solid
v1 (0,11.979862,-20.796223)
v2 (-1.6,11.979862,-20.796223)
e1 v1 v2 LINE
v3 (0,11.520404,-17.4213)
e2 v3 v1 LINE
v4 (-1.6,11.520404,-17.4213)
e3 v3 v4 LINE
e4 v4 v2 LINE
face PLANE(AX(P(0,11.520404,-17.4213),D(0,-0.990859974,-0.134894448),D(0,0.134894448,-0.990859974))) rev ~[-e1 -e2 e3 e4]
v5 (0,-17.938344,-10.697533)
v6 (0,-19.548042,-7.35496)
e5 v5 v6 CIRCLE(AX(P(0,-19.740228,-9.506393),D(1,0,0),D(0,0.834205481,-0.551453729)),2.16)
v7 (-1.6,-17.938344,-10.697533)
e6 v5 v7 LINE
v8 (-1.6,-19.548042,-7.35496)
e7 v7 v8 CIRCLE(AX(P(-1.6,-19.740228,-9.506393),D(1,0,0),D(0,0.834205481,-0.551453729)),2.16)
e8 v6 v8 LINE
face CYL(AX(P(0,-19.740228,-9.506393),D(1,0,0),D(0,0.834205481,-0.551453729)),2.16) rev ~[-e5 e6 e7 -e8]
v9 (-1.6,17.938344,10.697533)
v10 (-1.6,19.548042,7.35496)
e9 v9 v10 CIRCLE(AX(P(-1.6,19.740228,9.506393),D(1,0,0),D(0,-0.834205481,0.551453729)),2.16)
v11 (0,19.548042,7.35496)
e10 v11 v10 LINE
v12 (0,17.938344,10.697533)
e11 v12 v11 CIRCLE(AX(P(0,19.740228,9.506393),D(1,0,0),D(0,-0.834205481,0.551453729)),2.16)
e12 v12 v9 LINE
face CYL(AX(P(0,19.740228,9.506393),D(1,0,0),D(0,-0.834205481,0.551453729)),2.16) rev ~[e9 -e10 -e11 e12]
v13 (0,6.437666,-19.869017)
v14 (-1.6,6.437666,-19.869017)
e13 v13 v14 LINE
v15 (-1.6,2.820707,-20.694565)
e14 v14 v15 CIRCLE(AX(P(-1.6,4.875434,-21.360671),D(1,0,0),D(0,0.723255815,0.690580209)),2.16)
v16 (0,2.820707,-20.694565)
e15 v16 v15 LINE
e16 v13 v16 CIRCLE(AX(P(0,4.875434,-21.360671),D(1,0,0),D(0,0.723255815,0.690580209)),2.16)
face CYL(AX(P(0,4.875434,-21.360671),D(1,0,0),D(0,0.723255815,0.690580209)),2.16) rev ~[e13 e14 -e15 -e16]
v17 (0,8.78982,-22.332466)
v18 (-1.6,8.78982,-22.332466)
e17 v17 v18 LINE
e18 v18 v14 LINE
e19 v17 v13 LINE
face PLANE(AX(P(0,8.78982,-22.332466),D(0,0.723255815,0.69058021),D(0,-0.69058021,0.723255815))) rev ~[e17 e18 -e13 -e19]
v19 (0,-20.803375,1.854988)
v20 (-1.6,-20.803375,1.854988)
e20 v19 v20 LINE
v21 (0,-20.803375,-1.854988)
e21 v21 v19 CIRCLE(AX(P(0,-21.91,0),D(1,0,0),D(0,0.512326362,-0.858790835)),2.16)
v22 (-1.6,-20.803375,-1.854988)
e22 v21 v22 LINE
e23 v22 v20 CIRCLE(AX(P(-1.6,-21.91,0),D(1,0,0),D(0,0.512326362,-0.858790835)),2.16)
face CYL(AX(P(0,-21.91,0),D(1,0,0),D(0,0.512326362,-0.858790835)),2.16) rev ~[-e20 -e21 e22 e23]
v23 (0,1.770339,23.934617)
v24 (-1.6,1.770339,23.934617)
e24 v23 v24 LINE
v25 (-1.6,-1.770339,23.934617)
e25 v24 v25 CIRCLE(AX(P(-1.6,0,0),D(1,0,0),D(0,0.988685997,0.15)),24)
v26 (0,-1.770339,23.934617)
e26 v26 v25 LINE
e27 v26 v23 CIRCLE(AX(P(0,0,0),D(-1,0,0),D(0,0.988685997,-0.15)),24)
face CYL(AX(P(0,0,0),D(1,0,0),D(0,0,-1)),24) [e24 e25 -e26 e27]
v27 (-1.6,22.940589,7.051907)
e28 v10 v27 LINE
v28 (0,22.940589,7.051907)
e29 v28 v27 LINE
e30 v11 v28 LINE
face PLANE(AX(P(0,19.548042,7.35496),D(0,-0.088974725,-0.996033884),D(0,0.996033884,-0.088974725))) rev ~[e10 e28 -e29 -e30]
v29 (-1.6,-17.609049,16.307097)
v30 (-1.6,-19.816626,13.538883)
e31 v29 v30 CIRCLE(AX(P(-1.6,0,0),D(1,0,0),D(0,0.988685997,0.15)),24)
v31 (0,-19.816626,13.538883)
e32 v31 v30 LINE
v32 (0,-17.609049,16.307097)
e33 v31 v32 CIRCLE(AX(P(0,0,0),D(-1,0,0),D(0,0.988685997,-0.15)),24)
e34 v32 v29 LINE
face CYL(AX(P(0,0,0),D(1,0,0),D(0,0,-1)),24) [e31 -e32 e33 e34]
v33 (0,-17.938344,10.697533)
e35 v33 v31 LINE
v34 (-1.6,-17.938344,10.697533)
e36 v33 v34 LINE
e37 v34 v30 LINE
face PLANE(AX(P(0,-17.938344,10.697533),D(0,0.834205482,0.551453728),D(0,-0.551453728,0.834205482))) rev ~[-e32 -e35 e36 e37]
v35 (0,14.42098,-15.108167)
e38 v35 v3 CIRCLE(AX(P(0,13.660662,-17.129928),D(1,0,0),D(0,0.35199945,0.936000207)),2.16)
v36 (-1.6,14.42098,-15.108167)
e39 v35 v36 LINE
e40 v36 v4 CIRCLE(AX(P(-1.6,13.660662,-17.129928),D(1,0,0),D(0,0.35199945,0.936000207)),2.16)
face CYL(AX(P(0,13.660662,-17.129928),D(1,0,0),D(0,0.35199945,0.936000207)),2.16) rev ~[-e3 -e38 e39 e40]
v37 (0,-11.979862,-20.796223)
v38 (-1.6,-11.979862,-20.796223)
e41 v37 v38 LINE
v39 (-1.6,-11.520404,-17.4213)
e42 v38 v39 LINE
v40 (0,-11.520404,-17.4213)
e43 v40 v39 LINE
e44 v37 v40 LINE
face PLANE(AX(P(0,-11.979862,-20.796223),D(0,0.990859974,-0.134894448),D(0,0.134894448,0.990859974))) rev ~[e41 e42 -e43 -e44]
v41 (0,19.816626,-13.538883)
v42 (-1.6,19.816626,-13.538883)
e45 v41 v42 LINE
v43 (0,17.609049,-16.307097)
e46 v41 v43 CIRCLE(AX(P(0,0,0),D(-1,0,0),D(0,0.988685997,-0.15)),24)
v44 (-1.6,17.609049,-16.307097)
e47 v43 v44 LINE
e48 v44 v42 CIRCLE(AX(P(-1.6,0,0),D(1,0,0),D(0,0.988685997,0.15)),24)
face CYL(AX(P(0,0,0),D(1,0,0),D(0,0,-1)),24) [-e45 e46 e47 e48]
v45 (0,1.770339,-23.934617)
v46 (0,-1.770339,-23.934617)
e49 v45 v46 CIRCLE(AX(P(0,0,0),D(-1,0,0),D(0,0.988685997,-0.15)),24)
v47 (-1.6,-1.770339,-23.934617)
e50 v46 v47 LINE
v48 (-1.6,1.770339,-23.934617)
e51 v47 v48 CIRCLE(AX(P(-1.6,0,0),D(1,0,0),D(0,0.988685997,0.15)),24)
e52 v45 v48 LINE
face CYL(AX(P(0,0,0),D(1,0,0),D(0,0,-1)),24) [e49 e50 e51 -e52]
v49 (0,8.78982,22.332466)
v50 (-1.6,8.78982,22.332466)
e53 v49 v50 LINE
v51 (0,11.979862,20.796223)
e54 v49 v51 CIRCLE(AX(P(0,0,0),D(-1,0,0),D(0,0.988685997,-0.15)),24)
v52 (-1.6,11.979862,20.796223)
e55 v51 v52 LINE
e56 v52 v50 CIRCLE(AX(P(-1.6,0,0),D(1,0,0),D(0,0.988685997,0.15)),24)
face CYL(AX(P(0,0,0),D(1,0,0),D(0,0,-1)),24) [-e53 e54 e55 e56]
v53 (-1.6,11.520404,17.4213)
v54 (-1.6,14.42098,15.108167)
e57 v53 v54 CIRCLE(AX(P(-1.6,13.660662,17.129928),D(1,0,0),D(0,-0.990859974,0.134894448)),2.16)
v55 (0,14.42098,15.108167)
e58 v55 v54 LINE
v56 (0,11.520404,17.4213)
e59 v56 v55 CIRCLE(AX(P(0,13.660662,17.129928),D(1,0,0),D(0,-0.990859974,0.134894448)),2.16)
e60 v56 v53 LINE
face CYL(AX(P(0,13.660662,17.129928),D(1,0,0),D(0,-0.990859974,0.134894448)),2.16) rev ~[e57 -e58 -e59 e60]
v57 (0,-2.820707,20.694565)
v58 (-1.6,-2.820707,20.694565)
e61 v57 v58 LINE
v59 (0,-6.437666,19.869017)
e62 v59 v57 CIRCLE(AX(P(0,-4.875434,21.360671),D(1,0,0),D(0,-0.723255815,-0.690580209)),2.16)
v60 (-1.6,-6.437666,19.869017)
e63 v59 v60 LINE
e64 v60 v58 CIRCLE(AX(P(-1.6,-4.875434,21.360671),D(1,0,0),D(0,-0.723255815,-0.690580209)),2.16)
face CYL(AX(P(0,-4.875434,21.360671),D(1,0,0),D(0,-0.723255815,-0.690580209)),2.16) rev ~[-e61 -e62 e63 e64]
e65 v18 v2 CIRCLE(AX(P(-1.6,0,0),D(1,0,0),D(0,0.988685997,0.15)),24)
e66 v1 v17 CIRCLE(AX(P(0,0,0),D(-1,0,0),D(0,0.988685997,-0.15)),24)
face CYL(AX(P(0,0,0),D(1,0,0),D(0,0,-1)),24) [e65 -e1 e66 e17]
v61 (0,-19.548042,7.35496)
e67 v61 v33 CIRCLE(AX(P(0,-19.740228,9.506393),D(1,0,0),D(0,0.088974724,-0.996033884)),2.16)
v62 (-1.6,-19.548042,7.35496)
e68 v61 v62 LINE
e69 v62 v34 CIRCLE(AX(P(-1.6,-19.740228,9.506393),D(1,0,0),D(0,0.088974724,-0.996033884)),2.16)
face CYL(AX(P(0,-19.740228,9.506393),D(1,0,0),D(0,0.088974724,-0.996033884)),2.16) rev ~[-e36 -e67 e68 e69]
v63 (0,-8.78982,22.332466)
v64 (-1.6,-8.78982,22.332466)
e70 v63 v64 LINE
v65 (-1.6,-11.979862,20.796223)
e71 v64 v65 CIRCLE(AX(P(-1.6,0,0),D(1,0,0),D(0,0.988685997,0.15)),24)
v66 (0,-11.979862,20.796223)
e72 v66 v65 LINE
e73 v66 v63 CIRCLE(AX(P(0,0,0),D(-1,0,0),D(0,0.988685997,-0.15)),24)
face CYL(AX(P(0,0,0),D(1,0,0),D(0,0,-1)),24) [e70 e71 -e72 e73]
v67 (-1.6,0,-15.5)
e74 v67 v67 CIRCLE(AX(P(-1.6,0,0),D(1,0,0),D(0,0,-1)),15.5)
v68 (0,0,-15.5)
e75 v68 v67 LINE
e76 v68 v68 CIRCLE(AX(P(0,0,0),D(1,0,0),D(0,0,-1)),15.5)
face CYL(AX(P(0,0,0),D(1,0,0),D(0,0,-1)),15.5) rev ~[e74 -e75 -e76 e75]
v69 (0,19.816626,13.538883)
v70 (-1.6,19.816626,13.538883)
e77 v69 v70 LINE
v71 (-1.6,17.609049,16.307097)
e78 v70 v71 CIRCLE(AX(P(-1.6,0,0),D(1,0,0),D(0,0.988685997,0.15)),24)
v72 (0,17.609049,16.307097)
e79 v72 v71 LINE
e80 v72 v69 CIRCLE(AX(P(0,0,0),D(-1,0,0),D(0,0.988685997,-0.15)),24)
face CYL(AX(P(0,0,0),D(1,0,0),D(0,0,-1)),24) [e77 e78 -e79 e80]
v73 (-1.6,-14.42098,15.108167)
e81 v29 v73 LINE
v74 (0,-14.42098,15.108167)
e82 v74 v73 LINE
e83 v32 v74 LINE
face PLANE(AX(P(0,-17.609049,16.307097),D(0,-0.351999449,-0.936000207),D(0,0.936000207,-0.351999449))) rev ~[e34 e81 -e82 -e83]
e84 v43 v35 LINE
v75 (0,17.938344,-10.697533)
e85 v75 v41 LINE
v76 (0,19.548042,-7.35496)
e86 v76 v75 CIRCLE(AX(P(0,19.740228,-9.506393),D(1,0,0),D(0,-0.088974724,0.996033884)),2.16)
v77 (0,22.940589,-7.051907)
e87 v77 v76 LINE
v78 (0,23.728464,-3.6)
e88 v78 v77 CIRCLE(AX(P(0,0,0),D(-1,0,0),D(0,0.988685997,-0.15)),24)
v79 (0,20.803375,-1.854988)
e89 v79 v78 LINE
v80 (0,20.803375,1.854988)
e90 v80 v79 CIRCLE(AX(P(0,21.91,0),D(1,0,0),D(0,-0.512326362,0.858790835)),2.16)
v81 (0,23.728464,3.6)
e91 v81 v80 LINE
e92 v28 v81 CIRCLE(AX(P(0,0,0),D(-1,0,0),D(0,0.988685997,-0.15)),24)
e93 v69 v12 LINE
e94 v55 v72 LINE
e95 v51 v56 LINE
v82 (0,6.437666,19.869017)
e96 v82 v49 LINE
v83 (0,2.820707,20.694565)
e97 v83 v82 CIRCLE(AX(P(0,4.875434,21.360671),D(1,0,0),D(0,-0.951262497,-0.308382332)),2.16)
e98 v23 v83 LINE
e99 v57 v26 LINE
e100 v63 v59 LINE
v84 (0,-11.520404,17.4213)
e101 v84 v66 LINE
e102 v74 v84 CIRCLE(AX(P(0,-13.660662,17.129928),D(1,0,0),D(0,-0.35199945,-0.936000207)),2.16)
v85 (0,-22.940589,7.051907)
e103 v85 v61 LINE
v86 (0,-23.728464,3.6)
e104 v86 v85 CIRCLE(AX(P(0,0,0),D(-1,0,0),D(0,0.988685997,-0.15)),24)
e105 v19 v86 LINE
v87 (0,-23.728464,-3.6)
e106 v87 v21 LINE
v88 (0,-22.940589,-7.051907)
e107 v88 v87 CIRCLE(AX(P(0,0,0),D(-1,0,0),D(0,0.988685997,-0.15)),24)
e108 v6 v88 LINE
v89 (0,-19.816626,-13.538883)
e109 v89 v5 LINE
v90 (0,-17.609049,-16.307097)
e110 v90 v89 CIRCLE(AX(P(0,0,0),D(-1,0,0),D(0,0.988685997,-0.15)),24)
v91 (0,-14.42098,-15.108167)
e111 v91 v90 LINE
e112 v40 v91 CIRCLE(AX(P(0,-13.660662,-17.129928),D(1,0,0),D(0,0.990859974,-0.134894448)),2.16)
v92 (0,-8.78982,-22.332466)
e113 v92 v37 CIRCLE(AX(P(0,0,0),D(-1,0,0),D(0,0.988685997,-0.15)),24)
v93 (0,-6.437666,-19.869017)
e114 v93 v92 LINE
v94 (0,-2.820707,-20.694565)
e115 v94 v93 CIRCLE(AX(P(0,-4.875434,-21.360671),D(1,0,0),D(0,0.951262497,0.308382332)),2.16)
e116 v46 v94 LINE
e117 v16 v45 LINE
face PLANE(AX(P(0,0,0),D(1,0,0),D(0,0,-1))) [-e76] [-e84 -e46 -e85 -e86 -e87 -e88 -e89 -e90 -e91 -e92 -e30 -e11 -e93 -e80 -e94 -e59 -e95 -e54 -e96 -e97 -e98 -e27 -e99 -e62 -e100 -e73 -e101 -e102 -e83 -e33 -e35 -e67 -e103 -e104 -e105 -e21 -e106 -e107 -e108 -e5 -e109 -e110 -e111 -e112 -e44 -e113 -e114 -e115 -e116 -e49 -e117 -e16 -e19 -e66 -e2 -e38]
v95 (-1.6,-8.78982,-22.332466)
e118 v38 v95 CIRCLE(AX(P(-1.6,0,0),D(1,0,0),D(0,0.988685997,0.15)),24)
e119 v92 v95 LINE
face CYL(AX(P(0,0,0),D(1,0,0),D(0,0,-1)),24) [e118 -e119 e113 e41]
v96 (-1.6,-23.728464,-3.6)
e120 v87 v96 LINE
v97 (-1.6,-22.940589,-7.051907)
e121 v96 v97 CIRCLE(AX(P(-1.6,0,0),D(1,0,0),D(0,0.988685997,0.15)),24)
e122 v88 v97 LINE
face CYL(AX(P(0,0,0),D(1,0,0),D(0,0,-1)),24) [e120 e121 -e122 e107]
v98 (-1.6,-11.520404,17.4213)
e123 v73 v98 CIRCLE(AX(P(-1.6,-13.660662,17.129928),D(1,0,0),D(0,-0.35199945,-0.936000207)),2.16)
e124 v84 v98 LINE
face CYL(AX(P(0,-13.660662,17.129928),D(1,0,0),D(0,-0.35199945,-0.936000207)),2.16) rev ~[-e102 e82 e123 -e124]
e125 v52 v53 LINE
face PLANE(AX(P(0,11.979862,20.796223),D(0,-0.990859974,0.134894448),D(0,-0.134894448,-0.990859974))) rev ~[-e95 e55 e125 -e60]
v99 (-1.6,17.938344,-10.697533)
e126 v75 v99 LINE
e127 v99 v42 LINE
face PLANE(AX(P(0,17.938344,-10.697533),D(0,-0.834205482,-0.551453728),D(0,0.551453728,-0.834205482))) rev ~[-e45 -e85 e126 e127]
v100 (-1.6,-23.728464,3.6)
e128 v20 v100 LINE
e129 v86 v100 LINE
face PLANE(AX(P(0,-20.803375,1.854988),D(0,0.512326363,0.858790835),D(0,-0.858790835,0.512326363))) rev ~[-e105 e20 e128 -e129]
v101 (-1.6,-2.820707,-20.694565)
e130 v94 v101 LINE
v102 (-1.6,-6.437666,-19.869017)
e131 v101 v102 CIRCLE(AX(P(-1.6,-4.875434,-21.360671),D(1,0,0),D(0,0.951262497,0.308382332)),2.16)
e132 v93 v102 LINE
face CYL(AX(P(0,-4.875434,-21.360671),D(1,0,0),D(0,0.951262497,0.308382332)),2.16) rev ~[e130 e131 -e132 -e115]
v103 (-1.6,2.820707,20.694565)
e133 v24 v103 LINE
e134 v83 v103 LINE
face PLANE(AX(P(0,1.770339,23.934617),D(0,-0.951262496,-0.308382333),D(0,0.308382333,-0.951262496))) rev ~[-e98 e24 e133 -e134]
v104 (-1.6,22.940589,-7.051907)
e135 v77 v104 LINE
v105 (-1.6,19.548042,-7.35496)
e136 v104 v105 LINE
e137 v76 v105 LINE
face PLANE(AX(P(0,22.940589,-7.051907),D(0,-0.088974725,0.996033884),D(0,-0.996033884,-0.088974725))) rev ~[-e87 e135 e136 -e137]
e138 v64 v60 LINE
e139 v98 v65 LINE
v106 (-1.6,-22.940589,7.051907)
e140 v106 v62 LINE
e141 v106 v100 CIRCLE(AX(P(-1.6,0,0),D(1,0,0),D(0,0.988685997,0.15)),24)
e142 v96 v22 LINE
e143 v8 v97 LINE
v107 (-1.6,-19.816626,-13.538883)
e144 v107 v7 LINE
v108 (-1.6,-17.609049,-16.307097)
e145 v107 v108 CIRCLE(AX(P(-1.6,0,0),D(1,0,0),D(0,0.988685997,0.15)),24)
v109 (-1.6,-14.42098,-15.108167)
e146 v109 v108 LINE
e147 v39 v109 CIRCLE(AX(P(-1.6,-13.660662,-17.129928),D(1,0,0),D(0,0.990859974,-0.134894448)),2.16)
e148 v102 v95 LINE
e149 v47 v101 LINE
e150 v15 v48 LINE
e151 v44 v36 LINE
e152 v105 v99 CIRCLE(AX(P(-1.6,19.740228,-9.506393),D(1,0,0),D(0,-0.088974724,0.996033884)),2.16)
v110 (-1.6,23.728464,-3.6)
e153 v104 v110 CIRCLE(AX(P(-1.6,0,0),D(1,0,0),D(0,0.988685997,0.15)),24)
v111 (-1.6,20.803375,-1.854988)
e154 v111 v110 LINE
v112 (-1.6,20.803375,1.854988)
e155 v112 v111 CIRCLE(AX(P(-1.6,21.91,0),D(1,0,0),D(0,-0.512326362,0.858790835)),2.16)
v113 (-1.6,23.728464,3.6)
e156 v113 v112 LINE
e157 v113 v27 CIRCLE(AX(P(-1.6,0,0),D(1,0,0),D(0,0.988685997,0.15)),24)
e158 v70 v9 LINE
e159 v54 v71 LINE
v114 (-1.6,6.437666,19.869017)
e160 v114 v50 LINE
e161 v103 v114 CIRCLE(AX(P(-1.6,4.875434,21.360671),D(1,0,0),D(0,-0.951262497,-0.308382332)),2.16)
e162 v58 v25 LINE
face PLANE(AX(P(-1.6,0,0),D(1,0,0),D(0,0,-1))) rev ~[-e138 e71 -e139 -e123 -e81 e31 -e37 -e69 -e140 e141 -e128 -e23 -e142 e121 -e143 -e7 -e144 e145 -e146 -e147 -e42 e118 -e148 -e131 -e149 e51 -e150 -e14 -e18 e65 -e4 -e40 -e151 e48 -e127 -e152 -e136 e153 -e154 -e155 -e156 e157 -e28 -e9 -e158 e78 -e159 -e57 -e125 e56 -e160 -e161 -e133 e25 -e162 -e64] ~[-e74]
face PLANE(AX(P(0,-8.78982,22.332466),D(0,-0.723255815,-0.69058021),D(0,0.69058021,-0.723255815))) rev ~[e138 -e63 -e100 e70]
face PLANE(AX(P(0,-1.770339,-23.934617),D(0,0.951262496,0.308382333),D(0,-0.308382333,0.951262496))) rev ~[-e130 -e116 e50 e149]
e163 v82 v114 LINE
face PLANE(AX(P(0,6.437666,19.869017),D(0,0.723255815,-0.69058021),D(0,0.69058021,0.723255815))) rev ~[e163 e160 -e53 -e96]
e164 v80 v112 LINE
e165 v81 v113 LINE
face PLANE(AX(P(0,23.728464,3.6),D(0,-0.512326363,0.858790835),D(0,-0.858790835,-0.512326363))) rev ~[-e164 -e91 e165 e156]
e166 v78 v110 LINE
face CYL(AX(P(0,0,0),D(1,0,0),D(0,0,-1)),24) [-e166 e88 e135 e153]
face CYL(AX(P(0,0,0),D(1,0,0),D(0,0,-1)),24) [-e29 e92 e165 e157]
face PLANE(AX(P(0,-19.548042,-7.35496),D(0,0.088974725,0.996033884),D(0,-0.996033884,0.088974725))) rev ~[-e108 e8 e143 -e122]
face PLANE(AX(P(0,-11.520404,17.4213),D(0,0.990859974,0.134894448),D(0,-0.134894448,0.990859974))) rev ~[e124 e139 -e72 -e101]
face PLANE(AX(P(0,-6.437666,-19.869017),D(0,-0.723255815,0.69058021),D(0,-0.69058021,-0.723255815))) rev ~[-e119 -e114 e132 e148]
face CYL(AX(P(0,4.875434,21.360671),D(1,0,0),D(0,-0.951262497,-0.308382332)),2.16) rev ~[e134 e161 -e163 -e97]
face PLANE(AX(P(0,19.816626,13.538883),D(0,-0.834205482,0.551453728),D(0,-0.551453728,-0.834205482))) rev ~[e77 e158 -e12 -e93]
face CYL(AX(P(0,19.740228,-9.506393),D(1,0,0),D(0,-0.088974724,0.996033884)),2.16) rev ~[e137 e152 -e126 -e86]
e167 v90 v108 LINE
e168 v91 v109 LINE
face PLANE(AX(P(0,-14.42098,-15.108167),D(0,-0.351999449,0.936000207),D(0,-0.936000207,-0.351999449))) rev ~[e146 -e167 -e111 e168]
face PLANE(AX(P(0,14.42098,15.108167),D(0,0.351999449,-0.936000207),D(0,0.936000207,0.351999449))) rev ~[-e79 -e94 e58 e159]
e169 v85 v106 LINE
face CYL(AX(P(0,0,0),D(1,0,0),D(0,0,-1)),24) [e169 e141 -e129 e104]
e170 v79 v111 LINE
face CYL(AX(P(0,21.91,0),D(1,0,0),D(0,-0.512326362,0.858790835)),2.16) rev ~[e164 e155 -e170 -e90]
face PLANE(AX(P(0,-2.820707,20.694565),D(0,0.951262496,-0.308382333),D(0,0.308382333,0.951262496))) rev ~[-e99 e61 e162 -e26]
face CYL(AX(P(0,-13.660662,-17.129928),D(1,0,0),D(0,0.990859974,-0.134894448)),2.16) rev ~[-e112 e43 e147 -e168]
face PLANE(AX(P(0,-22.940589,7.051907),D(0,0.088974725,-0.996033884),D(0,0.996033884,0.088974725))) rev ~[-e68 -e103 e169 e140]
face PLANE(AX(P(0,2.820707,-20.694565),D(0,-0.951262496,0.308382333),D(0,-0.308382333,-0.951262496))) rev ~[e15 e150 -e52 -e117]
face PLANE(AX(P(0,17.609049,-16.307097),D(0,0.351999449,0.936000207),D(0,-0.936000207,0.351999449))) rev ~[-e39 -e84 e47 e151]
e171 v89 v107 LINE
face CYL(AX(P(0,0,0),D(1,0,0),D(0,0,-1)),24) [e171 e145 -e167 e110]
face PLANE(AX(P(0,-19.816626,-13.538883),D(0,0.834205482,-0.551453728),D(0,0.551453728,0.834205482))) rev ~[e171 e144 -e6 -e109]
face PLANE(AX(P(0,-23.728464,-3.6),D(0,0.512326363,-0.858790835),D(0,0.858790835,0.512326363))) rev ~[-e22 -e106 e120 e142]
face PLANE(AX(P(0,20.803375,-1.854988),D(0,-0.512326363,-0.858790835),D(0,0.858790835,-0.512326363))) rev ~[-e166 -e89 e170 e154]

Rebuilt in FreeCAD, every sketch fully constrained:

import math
import FreeCAD as App
import Part
import Sketcher

V = App.Vector

doc = App.newDocument("Part")
params = doc.addObject("Spreadsheet::Sheet", "Params")
for row, (alias, value) in enumerate([
    ("sketch1_diameter", "48 mm"),
    ("sketch1_diameter2", "31 mm"),
    ("pad1_length", "1.6 mm"),
    ("sketch2_radius", "2.16 mm"),
    ("sketch2_height", "7.2 mm"),
    ("sketch2_width", "2.16 mm"),
], start=1):
    params.set(f"A{row}", alias)
    params.set(f"B{row}", "=" + value)
    params.setAlias(f"B{row}", alias)

body = doc.addObject("PartDesign::Body", "Body")

sketch1 = doc.addObject("Sketcher::SketchObject", "Sketch")
body.addObject(sketch1)
sketch1.AttachmentSupport = (doc.YZ_Plane, [""])
sketch1.MapMode = "FlatFace"
sketch1.addGeometry(Part.Circle(V(0, 0, 0), V(0, 0, 1), 24), False)
sketch1.addGeometry(Part.Circle(V(0, 0, 0), V(0, 0, 1), 15.5), False)
sketch1.addConstraint(Sketcher.Constraint("Coincident", 0, 3, -1, 1))
sketch1.addConstraint(Sketcher.Constraint("Coincident", 1, 3, -1, 1))
sketch1.addConstraint(Sketcher.Constraint("Diameter", 0, 48.0))
sketch1.addConstraint(Sketcher.Constraint("Diameter", 1, 31.0))
sketch1.setExpression("Constraints[2]", "Params.sketch1_diameter")
sketch1.setExpression("Constraints[3]", "Params.sketch1_diameter2")
pad1 = doc.addObject("PartDesign::Pad", "Pad")
body.addObject(pad1)
pad1.Profile = sketch1
pad1.setExpression("Length", "Params.pad1_length")
pad1.Reversed = True

sketch2 = doc.addObject("Sketcher::SketchObject", "Sketch001")
body.addObject(sketch2)
sketch2.AttachmentSupport = (doc.YZ_Plane, [""])
sketch2.MapMode = "FlatFace"
sketch2.addGeometry(Part.LineSegment(V(20.803375, -1.854988, 0), V(23.728464, -3.6, 0)), False)
sketch2.addGeometry(Part.LineSegment(V(23.728464, -3.6, 0), V(25.888464, -3.6, 0)), False)
sketch2.addGeometry(Part.LineSegment(V(25.888464, -3.6, 0), V(25.888464, 3.6, 0)), False)
sketch2.addGeometry(Part.LineSegment(V(25.888464, 3.6, 0), V(23.728464, 3.6, 0)), False)
sketch2.addGeometry(Part.LineSegment(V(23.728464, 3.6, 0), V(20.803375, 1.854988, 0)), False)
sketch2.addGeometry(Part.ArcOfCircle(Part.Circle(V(21.91, 0, 0), V(0, 0, 1), 2.16), math.radians(120.818912), math.radians(239.181088)), False)
sketch2.addConstraint(Sketcher.Constraint("Coincident", 0, 2, 1, 1))
sketch2.addConstraint(Sketcher.Constraint("Coincident", 1, 2, 2, 1))
sketch2.addConstraint(Sketcher.Constraint("Coincident", 2, 2, 3, 1))
sketch2.addConstraint(Sketcher.Constraint("Coincident", 3, 2, 4, 1))
sketch2.addConstraint(Sketcher.Constraint("Tangent", 4, 2, 5, 1))
sketch2.addConstraint(Sketcher.Constraint("Tangent", 5, 2, 0, 1))
sketch2.addConstraint(Sketcher.Constraint("Horizontal", 1))
sketch2.addConstraint(Sketcher.Constraint("Vertical", 2))
sketch2.addConstraint(Sketcher.Constraint("Horizontal", 3))
sketch2.addConstraint(Sketcher.Constraint("Symmetric", 0, 2, 3, 2, -1))
sketch2.addConstraint(Sketcher.Constraint("PointOnObject", 5, 3, -1))
sketch2.addConstraint(Sketcher.Constraint("Radius", 5, 2.16))
sketch2.addConstraint(Sketcher.Constraint("DistanceY", 2, 1, 2, 2, 7.2))
sketch2.addConstraint(Sketcher.Constraint("DistanceX", 1, 1, 1, 2, 2.16))
sketch2.addConstraint(Sketcher.Constraint("DistanceX", -1, 1, 5, 3, 21.91))
sketch2.addConstraint(Sketcher.Constraint("DistanceY", -1, 1, 4, 2, 1.854988))
sketch2.setExpression("Constraints[11]", "Params.sketch2_radius")
sketch2.setExpression("Constraints[12]", "Params.sketch2_height")
sketch2.setExpression("Constraints[13]", "Params.sketch2_width")
pocket1 = doc.addObject("PartDesign::Pocket", "Pocket")
body.addObject(pocket1)
pocket1.Profile = sketch2
pocket1.Type = "ThroughAll"
doc.recompute()

polarpattern = doc.addObject("PartDesign::PolarPattern", "PolarPattern")
body.addObject(polarpattern)
polarpattern.Originals = [pocket1]
polarpattern.Axis = (doc.X_Axis, [""])
polarpattern.Angle = 360
polarpattern.Occurrences = 14
body.Tip = polarpattern

doc.recompute()
